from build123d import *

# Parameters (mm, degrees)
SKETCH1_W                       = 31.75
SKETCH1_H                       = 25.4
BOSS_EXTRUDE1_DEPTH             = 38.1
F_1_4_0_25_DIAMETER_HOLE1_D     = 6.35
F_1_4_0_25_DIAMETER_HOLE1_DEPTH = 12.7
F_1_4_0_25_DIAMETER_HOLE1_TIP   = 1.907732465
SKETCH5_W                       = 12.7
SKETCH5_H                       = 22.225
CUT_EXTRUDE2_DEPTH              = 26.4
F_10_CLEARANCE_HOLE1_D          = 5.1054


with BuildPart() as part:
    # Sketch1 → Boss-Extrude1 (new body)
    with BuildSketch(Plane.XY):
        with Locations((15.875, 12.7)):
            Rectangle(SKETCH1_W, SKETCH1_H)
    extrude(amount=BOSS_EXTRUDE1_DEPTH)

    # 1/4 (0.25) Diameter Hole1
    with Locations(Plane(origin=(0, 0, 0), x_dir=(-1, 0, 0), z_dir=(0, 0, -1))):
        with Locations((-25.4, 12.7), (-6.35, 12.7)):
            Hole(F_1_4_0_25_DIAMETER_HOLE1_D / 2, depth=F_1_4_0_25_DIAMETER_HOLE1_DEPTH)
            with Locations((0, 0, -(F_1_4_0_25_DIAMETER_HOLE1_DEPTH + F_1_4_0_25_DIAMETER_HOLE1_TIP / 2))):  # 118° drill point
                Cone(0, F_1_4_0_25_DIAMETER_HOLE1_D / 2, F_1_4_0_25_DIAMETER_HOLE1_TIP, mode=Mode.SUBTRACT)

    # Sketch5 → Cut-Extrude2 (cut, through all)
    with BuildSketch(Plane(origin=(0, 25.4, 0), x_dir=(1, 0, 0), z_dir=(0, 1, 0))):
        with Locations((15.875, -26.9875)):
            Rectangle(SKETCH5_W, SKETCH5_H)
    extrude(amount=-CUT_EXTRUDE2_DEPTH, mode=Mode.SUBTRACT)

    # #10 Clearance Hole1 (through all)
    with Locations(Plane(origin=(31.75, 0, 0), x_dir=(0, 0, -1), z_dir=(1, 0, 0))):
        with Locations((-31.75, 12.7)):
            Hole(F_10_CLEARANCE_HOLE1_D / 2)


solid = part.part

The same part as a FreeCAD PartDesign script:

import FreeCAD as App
import Part
import Sketcher
from FreeCAD import Vector
Q = App.Units.Quantity

doc = App.newDocument("Part")
params = doc.addObject("Spreadsheet::Sheet", "Params")
for row, (alias, value) in enumerate([
    ("sketch1_height", "1 in"),
    ("sketch1_width", "1.25 in"),
    ("pad1_length", "1.5 in"),
    ("sketch2_diameter", "0.25 in"),
    ("hole_diameter", "0.25 in"),
    ("hole_depth", "0.5 in"),
    ("sketch3_width", "0.5 in"),
    ("sketch3_height", "0.875 in"),
    ("sketch4_diameter", "0.201 in"),
    ("hole2_diameter", "0.201 in"),
], start=1):
    params.set(f"A{row}", alias)
    params.set(f"B{row}", "=" + value)
    params.setAlias(f"B{row}", alias)

body = doc.addObject("PartDesign::Body", "Body")

sketch1 = body.newObject("Sketcher::SketchObject", "Sketch")
sketch1.AttachmentSupport = (doc.getObject("XY_Plane"), [""])
sketch1.MapMode = "FlatFace"
sketch1.addGeometry([
    Part.LineSegment(Vector(0, 25, 0), Vector(0, 0, 0)),
    Part.LineSegment(Vector(0, 0, 0), Vector(32, 0, 0)),
    Part.LineSegment(Vector(32, 0, 0), Vector(32, 25, 0)),
    Part.LineSegment(Vector(32, 25, 0), Vector(0, 25, 0)),
], False)
sketch1.addConstraint([
    Sketcher.Constraint("Coincident", 0, 2, 1, 1),
    Sketcher.Constraint("Coincident", 1, 2, 2, 1),
    Sketcher.Constraint("Coincident", 2, 2, 3, 1),
    Sketcher.Constraint("Coincident", 3, 2, 0, 1),
    Sketcher.Constraint("Vertical", 0),
    Sketcher.Constraint("Horizontal", 1),
    Sketcher.Constraint("Vertical", 2),
    Sketcher.Constraint("Horizontal", 3),
    Sketcher.Constraint("Coincident", 0, 2, -1, 1),
    Sketcher.Constraint("DistanceY", 0, 2, 0, 1, Q("1 in")),
    Sketcher.Constraint("DistanceX", 1, 1, 1, 2, Q("1.25 in")),
])
sketch1.setExpression("Constraints[9]", "Params.sketch1_height")
sketch1.setExpression("Constraints[10]", "Params.sketch1_width")
pad1 = body.newObject("PartDesign::Pad", "Pad")
pad1.Profile = sketch1
pad1.setExpression("Length", "Params.pad1_length")

sketch2 = body.newObject("Sketcher::SketchObject", "Sketch001")
sketch2.AttachmentSupport = (doc.getObject("XY_Plane"), [""])
sketch2.MapMode = "FlatFace"
sketch2.addGeometry([
    Part.Circle(Vector(25.4, 12.7, 0), Vector(0, 0, 1), 3.2),
    Part.Circle(Vector(6.3, 12.7, 0), Vector(0, 0, 1), 3.2),
], False)
sketch2.addConstraint([
    Sketcher.Constraint("Equal", 0, 1),
    Sketcher.Constraint("Horizontal", 0, 3, 1, 3),
    Sketcher.Constraint("Diameter", 0, Q("0.25 in")),
    Sketcher.Constraint("DistanceX", -1, 1, 0, 3, Q("1 in")),
    Sketcher.Constraint("DistanceY", -1, 1, 0, 3, Q("0.5 in")),
    Sketcher.Constraint("DistanceX", -1, 1, 1, 3, Q("0.25 in")),
])
sketch2.setExpression("Constraints[2]", "Params.sketch2_diameter")
doc.recompute()
hole = body.newObject("PartDesign::Hole", "Hole")
hole.Profile = sketch2
hole.ThreadType = "None"
hole.setExpression("Diameter", "Params.hole_diameter")
hole.DepthType = "Dimension"
hole.setExpression("Depth", "Params.hole_depth")
hole.DrillPoint = "Angled"
hole.DrillPointAngle = 118
hole.Reversed = True

sketch3 = body.newObject("Sketcher::SketchObject", "Sketch002")
sketch3.AttachmentSupport = (doc.getObject("XZ_Plane"), [""])
sketch3.MapMode = "FlatFace"
sketch3.AttachmentOffset = App.Placement(Vector(0, 0, -1 * 25.4), App.Rotation())
sketch3.addGeometry([
    Part.LineSegment(Vector(10, 16, 0), Vector(10, 38, 0)),
    Part.LineSegment(Vector(10, 38, 0), Vector(22, 38, 0)),
    Part.LineSegment(Vector(22, 38, 0), Vector(22, 16, 0)),
    Part.LineSegment(Vector(22, 16, 0), Vector(10, 16, 0)),
], False)
sketch3.addConstraint([
    Sketcher.Constraint("Coincident", 0, 2, 1, 1),
    Sketcher.Constraint("Coincident", 1, 2, 2, 1),
    Sketcher.Constraint("Coincident", 2, 2, 3, 1),
    Sketcher.Constraint("Coincident", 3, 2, 0, 1),
    Sketcher.Constraint("Vertical", 0),
    Sketcher.Constraint("Horizontal", 1),
    Sketcher.Constraint("Vertical", 2),
    Sketcher.Constraint("Horizontal", 3),
    Sketcher.Constraint("DistanceX", 1, 1, 1, 2, Q("0.5 in")),
    Sketcher.Constraint("DistanceY", -1, 1, 0, 2, Q("1.5 in")),
    Sketcher.Constraint("DistanceY", 0, 1, 0, 2, Q("0.875 in")),
    Sketcher.Constraint("DistanceX", -1, 1, 0, 2, Q("0.375 in")),
])
sketch3.setExpression("Constraints[8]", "Params.sketch3_width")
sketch3.setExpression("Constraints[10]", "Params.sketch3_height")
pocket1 = body.newObject("PartDesign::Pocket", "Pocket")
pocket1.Profile = sketch3
pocket1.Type = "ThroughAll"
pocket1.Reversed = True

sketch4 = body.newObject("Sketcher::SketchObject", "Sketch003")
sketch4.AttachmentSupport = (doc.getObject("YZ_Plane"), [""])
sketch4.MapMode = "FlatFace"
sketch4.AttachmentOffset = App.Placement(Vector(0, 0, 1.25 * 25.4), App.Rotation())
sketch4.addGeometry(Part.Circle(Vector(12.7, 31.8, 0), Vector(0, 0, 1), 2.6), False)
sketch4.addConstraint([
    Sketcher.Constraint("Diameter", 0, Q("0.201 in")),
    Sketcher.Constraint("DistanceX", -1, 1, 0, 3, Q("0.5 in")),
    Sketcher.Constraint("DistanceY", -1, 1, 0, 3, Q("1.25 in")),
])
sketch4.setExpression("Constraints[0]", "Params.sketch4_diameter")
doc.recompute()
hole2 = body.newObject("PartDesign::Hole", "Hole001")
hole2.Profile = sketch4
hole2.ThreadType = "None"
hole2.setExpression("Diameter", "Params.hole2_diameter")
hole2.DepthType = "ThroughAll"

doc.recompute()
